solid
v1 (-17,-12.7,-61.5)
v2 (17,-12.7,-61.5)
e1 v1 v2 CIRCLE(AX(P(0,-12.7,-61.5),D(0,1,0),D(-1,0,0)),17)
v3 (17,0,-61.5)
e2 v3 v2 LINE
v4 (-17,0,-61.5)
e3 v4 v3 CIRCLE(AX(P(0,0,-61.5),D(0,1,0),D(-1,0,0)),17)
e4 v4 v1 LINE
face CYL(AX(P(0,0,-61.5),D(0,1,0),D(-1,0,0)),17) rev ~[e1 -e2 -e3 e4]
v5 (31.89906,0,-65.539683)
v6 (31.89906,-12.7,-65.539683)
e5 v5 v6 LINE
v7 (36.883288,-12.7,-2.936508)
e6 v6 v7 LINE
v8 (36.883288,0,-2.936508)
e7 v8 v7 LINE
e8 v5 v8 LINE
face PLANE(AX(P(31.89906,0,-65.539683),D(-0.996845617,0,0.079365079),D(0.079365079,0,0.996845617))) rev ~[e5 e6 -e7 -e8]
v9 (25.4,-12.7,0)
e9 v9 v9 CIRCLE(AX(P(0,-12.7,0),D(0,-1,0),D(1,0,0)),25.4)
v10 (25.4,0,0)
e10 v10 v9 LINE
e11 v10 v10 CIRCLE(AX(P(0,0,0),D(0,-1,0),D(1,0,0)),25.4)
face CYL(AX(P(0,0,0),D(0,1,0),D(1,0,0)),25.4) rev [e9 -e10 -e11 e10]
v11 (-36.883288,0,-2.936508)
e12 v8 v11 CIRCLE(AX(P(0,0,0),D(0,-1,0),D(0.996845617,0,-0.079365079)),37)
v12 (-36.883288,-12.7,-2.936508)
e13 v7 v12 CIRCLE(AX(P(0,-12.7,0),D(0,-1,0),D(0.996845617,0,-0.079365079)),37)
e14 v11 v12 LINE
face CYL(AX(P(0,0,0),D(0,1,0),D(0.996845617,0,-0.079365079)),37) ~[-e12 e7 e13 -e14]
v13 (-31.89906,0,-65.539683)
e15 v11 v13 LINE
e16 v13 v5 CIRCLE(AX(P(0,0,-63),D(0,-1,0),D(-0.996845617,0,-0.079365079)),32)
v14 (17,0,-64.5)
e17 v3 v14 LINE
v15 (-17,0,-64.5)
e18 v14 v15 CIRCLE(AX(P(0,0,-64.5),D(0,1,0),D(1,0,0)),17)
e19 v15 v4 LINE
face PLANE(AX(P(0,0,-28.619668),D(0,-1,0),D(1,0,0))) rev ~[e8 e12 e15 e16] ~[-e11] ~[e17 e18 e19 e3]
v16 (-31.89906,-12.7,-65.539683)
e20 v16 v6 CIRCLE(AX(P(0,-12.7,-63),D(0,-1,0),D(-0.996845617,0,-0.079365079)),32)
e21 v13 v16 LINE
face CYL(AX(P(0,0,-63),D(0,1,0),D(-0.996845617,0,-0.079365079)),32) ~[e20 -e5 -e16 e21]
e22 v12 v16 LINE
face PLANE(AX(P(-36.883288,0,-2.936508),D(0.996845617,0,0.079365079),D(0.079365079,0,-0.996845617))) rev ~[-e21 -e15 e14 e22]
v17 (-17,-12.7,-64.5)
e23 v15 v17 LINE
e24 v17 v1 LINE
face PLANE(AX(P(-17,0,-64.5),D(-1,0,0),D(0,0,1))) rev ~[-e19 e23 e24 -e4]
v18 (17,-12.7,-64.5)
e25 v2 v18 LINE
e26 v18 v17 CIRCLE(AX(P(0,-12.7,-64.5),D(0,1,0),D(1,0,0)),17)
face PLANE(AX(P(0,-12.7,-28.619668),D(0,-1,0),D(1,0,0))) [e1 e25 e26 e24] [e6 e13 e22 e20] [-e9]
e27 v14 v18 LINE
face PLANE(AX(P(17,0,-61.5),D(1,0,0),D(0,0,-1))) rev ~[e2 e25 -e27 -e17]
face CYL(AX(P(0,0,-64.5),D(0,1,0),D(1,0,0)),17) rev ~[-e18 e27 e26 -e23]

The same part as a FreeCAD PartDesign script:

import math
import FreeCAD as App
import Part
import Sketcher
from FreeCAD import Vector
Q = App.Units.Quantity

doc = App.newDocument("Part")
body = doc.addObject("PartDesign::Body", "Body")

# Sketch on XZ plane
sketch1 = doc.addObject("Sketcher::SketchObject", "Sketch")
body.addObject(sketch1)
sketch1.AttachmentSupport = (doc.XZ_Plane, [""])
sketch1.MapMode = "FlatFace"
sketch1.addGeometry(Part.LineSegment(Vector(31.9, -65.5, 0), Vector(36.9, -2.9, 0)), False)
sketch1.addGeometry(Part.ArcOfCircle(Part.Circle(Vector(0, 0, 0), Vector(0, 0, 1), 37), math.radians(-5), math.radians(185)), False)
sketch1.addGeometry(Part.LineSegment(Vector(-36.9, -2.9, 0), Vector(-31.9, -65.5, 0)), False)
sketch1.addGeometry(Part.ArcOfCircle(Part.Circle(Vector(0, -63, 0), Vector(0, 0, 1), 32), math.radians(-175), math.radians(-5)), False)
sketch1.addGeometry(Part.ArcOfCircle(Part.Circle(Vector(0, -64.5, 0), Vector(0, 0, 1), 17), math.radians(180), math.radians(360)), False)
sketch1.addGeometry(Part.LineSegment(Vector(-17, -64.5, 0), Vector(-17, -61.5, 0)), False)
sketch1.addGeometry(Part.ArcOfCircle(Part.Circle(Vector(0, -61.5, 0), Vector(0, 0, 1), 17), math.radians(0), math.radians(180)), False)
sketch1.addGeometry(Part.LineSegment(Vector(17, -61.5, 0), Vector(17, -64.5, 0)), False)
sketch1.addGeometry(Part.Circle(Vector(0, 0, 0), Vector(0, 0, 1), 25.4), False)
sketch1.addConstraint(Sketcher.Constraint("Tangent", 0, 2, 1, 1))
sketch1.addConstraint(Sketcher.Constraint("Tangent", 1, 2, 2, 1))
sketch1.addConstraint(Sketcher.Constraint("Tangent", 2, 2, 3, 1))
sketch1.addConstraint(Sketcher.Constraint("Tangent", 3, 2, 0, 1))
sketch1.addConstraint(Sketcher.Constraint("Tangent", 4, 1, 5, 1))
sketch1.addConstraint(Sketcher.Constraint("Tangent", 5, 2, 6, 2))
sketch1.addConstraint(Sketcher.Constraint("Tangent", 6, 1, 7, 1))
sketch1.addConstraint(Sketcher.Constraint("Tangent", 7, 2, 4, 2))
sketch1.addConstraint(Sketcher.Constraint("Vertical", 5))
sketch1.addConstraint(Sketcher.Constraint("Vertical", 7))
sketch1.addConstraint(Sketcher.Constraint("Coincident", 1, 3, -1, 1))
sketch1.addConstraint(Sketcher.Constraint("Coincident", 8, 3, -1, 1))
sketch1.addConstraint(Sketcher.Constraint("PointOnObject", 3, 3, -2))
sketch1.addConstraint(Sketcher.Constraint("PointOnObject", 4, 3, -2))
sketch1.addConstraint(Sketcher.Constraint("Radius", 1, Q("37 mm")))
sketch1.addConstraint(Sketcher.Constraint("Radius", 3, Q("32 mm")))
sketch1.addConstraint(Sketcher.Constraint("Radius", 4, Q("17 mm")))
sketch1.addConstraint(Sketcher.Constraint("Diameter", 8, Q("50.8 mm")))
sketch1.addConstraint(Sketcher.Constraint("DistanceY", 5, 1, 5, 2, Q("3 mm")))
sketch1.addConstraint(Sketcher.Constraint("DistanceY", 3, 3, -1, 1, Q("63 mm")))
sketch1.addConstraint(Sketcher.Constraint("DistanceY", 4, 3, -1, 1, Q("64.5 mm")))
pad1 = doc.addObject("PartDesign::Pad", "Pad")
body.addObject(pad1)
pad1.Profile = sketch1
pad1.Length = 12.7

doc.recompute()
